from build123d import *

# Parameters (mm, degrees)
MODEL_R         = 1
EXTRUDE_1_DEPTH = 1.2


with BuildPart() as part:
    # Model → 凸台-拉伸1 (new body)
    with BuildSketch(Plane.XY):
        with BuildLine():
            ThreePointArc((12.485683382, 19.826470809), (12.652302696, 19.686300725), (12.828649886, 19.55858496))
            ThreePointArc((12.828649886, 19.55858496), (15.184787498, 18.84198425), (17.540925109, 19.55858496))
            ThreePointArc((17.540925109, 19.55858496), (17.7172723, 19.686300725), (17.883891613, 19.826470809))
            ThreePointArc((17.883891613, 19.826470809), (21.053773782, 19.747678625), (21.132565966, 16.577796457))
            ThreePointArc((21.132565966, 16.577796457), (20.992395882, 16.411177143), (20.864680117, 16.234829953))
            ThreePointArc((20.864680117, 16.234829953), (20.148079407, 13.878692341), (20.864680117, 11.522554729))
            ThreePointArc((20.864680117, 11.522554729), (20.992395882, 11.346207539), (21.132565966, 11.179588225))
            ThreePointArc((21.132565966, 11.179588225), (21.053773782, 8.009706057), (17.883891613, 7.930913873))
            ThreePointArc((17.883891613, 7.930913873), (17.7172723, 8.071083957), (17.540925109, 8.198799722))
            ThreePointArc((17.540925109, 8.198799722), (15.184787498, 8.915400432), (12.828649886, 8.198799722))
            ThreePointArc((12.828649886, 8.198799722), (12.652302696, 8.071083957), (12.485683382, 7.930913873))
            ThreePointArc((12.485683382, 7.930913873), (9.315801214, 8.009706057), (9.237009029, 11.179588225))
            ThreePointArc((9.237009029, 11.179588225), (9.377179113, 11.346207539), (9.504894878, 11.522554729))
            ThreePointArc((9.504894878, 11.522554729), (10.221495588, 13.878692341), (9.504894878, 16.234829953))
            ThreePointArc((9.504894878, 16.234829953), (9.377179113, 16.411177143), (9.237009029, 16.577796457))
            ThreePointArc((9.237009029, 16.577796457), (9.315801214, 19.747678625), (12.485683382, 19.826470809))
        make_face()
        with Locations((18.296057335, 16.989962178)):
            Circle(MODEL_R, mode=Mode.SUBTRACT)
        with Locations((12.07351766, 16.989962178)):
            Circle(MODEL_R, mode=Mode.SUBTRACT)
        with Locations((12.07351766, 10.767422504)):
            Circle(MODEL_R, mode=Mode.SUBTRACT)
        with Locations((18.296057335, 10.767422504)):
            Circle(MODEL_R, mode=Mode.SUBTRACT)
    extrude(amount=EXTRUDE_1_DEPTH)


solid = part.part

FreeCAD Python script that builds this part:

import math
import FreeCAD as App
import Part
import Sketcher

V = App.Vector
Q = App.Units.Quantity

doc = App.newDocument("Part")
body = doc.addObject("PartDesign::Body", "Body")

# Sketch on XY plane
sketch1 = doc.addObject("Sketcher::SketchObject", "Sketch")
body.addObject(sketch1)
sketch1.AttachmentSupport = (doc.XY_Plane, [""])
sketch1.MapMode = "FlatFace"
sketch1.addGeometry(Part.ArcOfCircle(Part.Circle(V(14.498992, 22.050564, 0), V(0, 0, 1), 3), math.radians(-132.152241), math.radians(-123.833452)), False)
sketch1.addGeometry(Part.ArcOfCircle(Part.Circle(V(10.942147, 18.121333, 0), V(0, 0, 1), 2.3), math.radians(47.847759), math.radians(222.152241)), False)
sketch1.addGeometry(Part.ArcOfCircle(Part.Circle(V(7.012916, 14.564488, 0), V(0, 0, 1), 3), math.radians(33.833452), math.radians(42.152241)), False)
sketch1.addGeometry(Part.ArcOfCircle(Part.Circle(V(5.98978, 13.878692, 0), V(0, 0, 1), 4.231716), math.radians(-33.833452), math.radians(33.833452)), False)
sketch1.addGeometry(Part.ArcOfCircle(Part.Circle(V(7.012916, 13.192897, 0), V(0, 0, 1), 3), math.radians(-42.152241), math.radians(-33.833452)), False)
sketch1.addGeometry(Part.ArcOfCircle(Part.Circle(V(10.942147, 9.636052, 0), V(0, 0, 1), 2.3), math.radians(137.847759), math.radians(312.152241)), False)
sketch1.addGeometry(Part.ArcOfCircle(Part.Circle(V(14.498992, 5.706821, 0), V(0, 0, 1), 3), math.radians(123.833452), math.radians(132.152241)), False)
sketch1.addGeometry(Part.ArcOfCircle(Part.Circle(V(15.184787, 4.683685, 0), V(0, 0, 1), 4.231716), math.radians(56.166548), math.radians(123.833452)), False)
sketch1.addGeometry(Part.ArcOfCircle(Part.Circle(V(15.870583, 5.706821, 0), V(0, 0, 1), 3), math.radians(47.847759), math.radians(56.166548)), False)
sketch1.addGeometry(Part.ArcOfCircle(Part.Circle(V(19.427428, 9.636052, 0), V(0, 0, 1), 2.3), math.radians(-132.152241), math.radians(42.152241)), False)
sketch1.addGeometry(Part.ArcOfCircle(Part.Circle(V(23.356659, 13.192897, 0), V(0, 0, 1), 3), math.radians(-146.166548), math.radians(-137.847759)), False)
sketch1.addGeometry(Part.ArcOfCircle(Part.Circle(V(24.379795, 13.878692, 0), V(0, 0, 1), 4.231716), math.radians(146.166548), math.radians(213.833452)), False)
sketch1.addGeometry(Part.ArcOfCircle(Part.Circle(V(23.356659, 14.564488, 0), V(0, 0, 1), 3), math.radians(137.847759), math.radians(146.166548)), False)
sketch1.addGeometry(Part.ArcOfCircle(Part.Circle(V(19.427428, 18.121333, 0), V(0, 0, 1), 2.3), math.radians(-42.152241), math.radians(132.152241)), False)
sketch1.addGeometry(Part.ArcOfCircle(Part.Circle(V(15.870583, 22.050563, 0), V(0, 0, 1), 3), math.radians(-56.166548), math.radians(-47.847759)), False)
sketch1.addGeometry(Part.ArcOfCircle(Part.Circle(V(15.184787, 23.0737, 0), V(0, 0, 1), 4.231716), math.radians(-123.833452), math.radians(-56.166548)), False)
sketch1.addGeometry(Part.Circle(V(18.296057, 10.767423, 0), V(0, 0, 1), 1), False)
sketch1.addGeometry(Part.Circle(V(12.073518, 10.767423, 0), V(0, 0, 1), 1), False)
sketch1.addGeometry(Part.Circle(V(18.296057, 16.989962, 0), V(0, 0, 1), 1), False)
sketch1.addGeometry(Part.Circle(V(12.073518, 16.989962, 0), V(0, 0, 1), 1), False)
sketch1.addConstraint(Sketcher.Constraint("Coincident", 0, 1, 1, 1))
sketch1.addConstraint(Sketcher.Constraint("Coincident", 1, 2, 2, 2))
sketch1.addConstraint(Sketcher.Constraint("Coincident", 2, 1, 3, 2))
sketch1.addConstraint(Sketcher.Constraint("Coincident", 3, 1, 4, 2))
sketch1.addConstraint(Sketcher.Constraint("Coincident", 4, 1, 5, 1))
sketch1.addConstraint(Sketcher.Constraint("Coincident", 5, 2, 6, 2))
sketch1.addConstraint(Sketcher.Constraint("Coincident", 6, 1, 7, 2))
sketch1.addConstraint(Sketcher.Constraint("Coincident", 7, 1, 8, 2))
sketch1.addConstraint(Sketcher.Constraint("Coincident", 8, 1, 9, 1))
sketch1.addConstraint(Sketcher.Constraint("Coincident", 9, 2, 10, 2))
sketch1.addConstraint(Sketcher.Constraint("Coincident", 10, 1, 11, 2))
sketch1.addConstraint(Sketcher.Constraint("Coincident", 11, 1, 12, 2))
sketch1.addConstraint(Sketcher.Constraint("Coincident", 12, 1, 13, 1))
sketch1.addConstraint(Sketcher.Constraint("Coincident", 13, 2, 14, 2))
sketch1.addConstraint(Sketcher.Constraint("Coincident", 14, 1, 15, 2))
sketch1.addConstraint(Sketcher.Constraint("Coincident", 15, 1, 0, 2))
sketch1.addConstraint(Sketcher.Constraint("Diameter", 16, Q("2 mm")))
sketch1.addConstraint(Sketcher.Constraint("Diameter", 17, Q("2 mm")))
sketch1.addConstraint(Sketcher.Constraint("Diameter", 18, Q("2 mm")))
sketch1.addConstraint(Sketcher.Constraint("Diameter", 19, Q("2 mm")))
sketch1.addConstraint(Sketcher.Constraint("Radius", 0, Q("3 mm")))
sketch1.addConstraint(Sketcher.Constraint("Radius", 2, Q("3 mm")))
sketch1.addConstraint(Sketcher.Constraint("Radius", 4, Q("3 mm")))
sketch1.addConstraint(Sketcher.Constraint("Radius", 6, Q("3 mm")))
sketch1.addConstraint(Sketcher.Constraint("Radius", 8, Q("3 mm")))
sketch1.addConstraint(Sketcher.Constraint("Radius", 10, Q("3 mm")))
sketch1.addConstraint(Sketcher.Constraint("Radius", 12, Q("3 mm")))
sketch1.addConstraint(Sketcher.Constraint("Radius", 14, Q("3 mm")))
sketch1.addConstraint(Sketcher.Constraint("Radius", 1, Q("2.3 mm")))
sketch1.addConstraint(Sketcher.Constraint("Radius", 5, Q("2.3 mm")))
sketch1.addConstraint(Sketcher.Constraint("Radius", 9, Q("2.3 mm")))
sketch1.addConstraint(Sketcher.Constraint("Radius", 13, Q("2.3 mm")))
sketch1.addConstraint(Sketcher.Constraint("Radius", 3, Q("4.231716 mm")))
sketch1.addConstraint(Sketcher.Constraint("Radius", 7, Q("4.231716 mm")))
sketch1.addConstraint(Sketcher.Constraint("Radius", 11, Q("4.231716 mm")))
sketch1.addConstraint(Sketcher.Constraint("Radius", 15, Q("4.231716 mm")))
sketch1.addConstraint(Sketcher.Constraint("DistanceY", -1, 1, 15, 3, Q("23.0737 mm")))
sketch1.addConstraint(Sketcher.Constraint("DistanceY", -1, 1, 6, 1, Q("8.1988 mm")))
sketch1.addConstraint(Sketcher.Constraint("DistanceY", -1, 1, 7, 1, Q("8.1988 mm")))
sketch1.addConstraint(Sketcher.Constraint("DistanceY", 8, 3, 16, 3, Q("5.060601 mm")))
sketch1.addConstraint(Sketcher.Constraint("DistanceX", 16, 3, 10, 3, Q("5.060601 mm")))
sketch1.addConstraint(Sketcher.Constraint("DistanceX", 16, 3, 12, 3, Q("5.060601 mm")))
sketch1.addConstraint(Sketcher.Constraint("DistanceY", 6, 3, 16, 3, Q("5.060601 mm")))
sketch1.addConstraint(Sketcher.Constraint("DistanceX", 4, 3, 17, 3, Q("5.060601 mm")))
sketch1.addConstraint(Sketcher.Constraint("DistanceY", 6, 3, 17, 3, Q("5.060601 mm")))
sketch1.addConstraint(Sketcher.Constraint("DistanceY", 18, 3, 14, 3, Q("5.060601 mm")))
sketch1.addConstraint(Sketcher.Constraint("DistanceX", 18, 3, 12, 3, Q("5.060601 mm")))
sketch1.addConstraint(Sketcher.Constraint("DistanceX", 2, 3, 19, 3, Q("5.060601 mm")))
sketch1.addConstraint(Sketcher.Constraint("DistanceY", 19, 3, 0, 3, Q("5.060601 mm")))
sketch1.addConstraint(Sketcher.Constraint("DistanceX", 0, 1, 14, 3, Q("3.3849 mm")))
sketch1.addConstraint(Sketcher.Constraint("DistanceY", 4, 3, 1, 2, Q("3.3849 mm")))
sketch1.addConstraint(Sketcher.Constraint("DistanceY", 4, 1, 2, 3, Q("3.3849 mm")))
sketch1.addConstraint(Sketcher.Constraint("DistanceX", 5, 2, 8, 3, Q("3.3849 mm")))
sketch1.addConstraint(Sketcher.Constraint("DistanceX", 6, 3, 8, 1, Q("3.3849 mm")))
sketch1.addConstraint(Sketcher.Constraint("DistanceY", 9, 2, 12, 3, Q("3.3849 mm")))
sketch1.addConstraint(Sketcher.Constraint("DistanceY", 10, 3, 12, 1, Q("3.3849 mm")))
sketch1.addConstraint(Sketcher.Constraint("DistanceX", 0, 3, 13, 2, Q("3.3849 mm")))
sketch1.addConstraint(Sketcher.Constraint("DistanceX", -1, 1, 0, 3, Q("14.498992 mm")))
sketch1.addConstraint(Sketcher.Constraint("DistanceX", -1, 1, 3, 3, Q("5.98978 mm")))
sketch1.addConstraint(Sketcher.Constraint("DistanceY", -1, 1, 5, 3, Q("9.636052 mm")))
sketch1.addConstraint(Sketcher.Constraint("DistanceX", -1, 1, 6, 3, Q("14.498992 mm")))
sketch1.addConstraint(Sketcher.Constraint("DistanceY", -1, 1, 6, 3, Q("5.706821 mm")))
sketch1.addConstraint(Sketcher.Constraint("DistanceX", -1, 1, 9, 3, Q("19.427428 mm")))
sketch1.addConstraint(Sketcher.Constraint("DistanceY", -1, 1, 9, 3, Q("9.636052 mm")))
sketch1.addConstraint(Sketcher.Constraint("DistanceX", -1, 1, 10, 3, Q("23.356659 mm")))
sketch1.addConstraint(Sketcher.Constraint("DistanceX", -1, 1, 13, 3, Q("19.427428 mm")))
sketch1.addConstraint(Sketcher.Constraint("DistanceY", -1, 1, 0, 1, Q("19.826471 mm")))
sketch1.addConstraint(Sketcher.Constraint("DistanceX", -1, 1, 1, 2, Q("9.237009 mm")))
sketch1.addConstraint(Sketcher.Constraint("DistanceY", -1, 1, 2, 1, Q("16.23483 mm")))
sketch1.addConstraint(Sketcher.Constraint("DistanceX", -1, 1, 4, 1, Q("9.237009 mm")))
sketch1.addConstraint(Sketcher.Constraint("DistanceY", -1, 1, 9, 2, Q("11.179588 mm")))
sketch1.addConstraint(Sketcher.Constraint("DistanceX", -1, 1, 10, 1, Q("20.86468 mm")))
sketch1.addConstraint(Sketcher.Constraint("DistanceX", -1, 1, 11, 1, Q("20.86468 mm")))
sketch1.addConstraint(Sketcher.Constraint("DistanceX", -1, 1, 15, 1, Q("12.82865 mm")))
sketch1.addConstraint(Sketcher.Constraint("DistanceX", 3, 1, 5, 3, Q("1.437252 mm")))
sketch1.addConstraint(Sketcher.Constraint("DistanceY", 13, 3, 14, 1, Q("1.437252 mm")))
pad1 = doc.addObject("PartDesign::Pad", "Pad")
body.addObject(pad1)
pad1.Profile = sketch1
pad1.Length = 1.2

doc.recompute()
